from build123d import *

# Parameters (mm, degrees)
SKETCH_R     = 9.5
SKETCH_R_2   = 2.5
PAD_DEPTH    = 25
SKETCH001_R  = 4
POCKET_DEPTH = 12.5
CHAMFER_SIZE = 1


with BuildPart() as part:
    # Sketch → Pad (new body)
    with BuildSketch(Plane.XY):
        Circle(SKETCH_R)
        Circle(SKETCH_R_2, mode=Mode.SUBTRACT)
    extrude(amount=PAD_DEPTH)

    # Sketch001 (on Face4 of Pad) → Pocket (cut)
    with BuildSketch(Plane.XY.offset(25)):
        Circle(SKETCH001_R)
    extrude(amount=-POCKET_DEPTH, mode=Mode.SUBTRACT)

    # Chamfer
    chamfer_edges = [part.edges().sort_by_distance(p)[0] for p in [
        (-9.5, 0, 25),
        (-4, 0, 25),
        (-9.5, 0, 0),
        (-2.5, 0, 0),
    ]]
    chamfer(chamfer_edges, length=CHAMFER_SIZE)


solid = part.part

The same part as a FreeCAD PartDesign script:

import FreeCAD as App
import Part
import Sketcher
from FreeCAD import Vector


def edges_at(feature, points):
    """Names of the edges that pass closest to the given points."""
    edges = feature.Shape.Edges
    near = lambda p: min(range(len(edges)), key=lambda i: edges[i].distToShape(Part.Vertex(*p))[0])
    return sorted({f"Edge{near(p) + 1}" for p in points})

doc = App.newDocument("Part")
body = doc.addObject("PartDesign::Body", "Body")

sketch1 = body.newObject("Sketcher::SketchObject", "Sketch")
sketch1.AttachmentSupport = (doc.getObject("XY_Plane"), [""])
sketch1.MapMode = "FlatFace"
sketch1.addGeometry([
    Part.Circle(Vector(0, 0, 0), Vector(0, 0, 1), 9.5),
    Part.Circle(Vector(0, 0, 0), Vector(0, 0, 1), 2.5),
], False)
sketch1.addConstraint([
    Sketcher.Constraint("Coincident", 0, 3, -1, 1),
    Sketcher.Constraint("Coincident", 1, 3, -1, 1),
    Sketcher.Constraint("Diameter", 0, 19.0),
    Sketcher.Constraint("Diameter", 1, 5.0),
])
pad1 = body.newObject("PartDesign::Pad", "Pad")
pad1.Profile = sketch1
pad1.Length = 25

sketch2 = body.newObject("Sketcher::SketchObject", "Sketch001")
sketch2.AttachmentSupport = (doc.getObject("XY_Plane"), [""])
sketch2.MapMode = "FlatFace"
sketch2.AttachmentOffset = App.Placement(Vector(0, 0, 25), App.Rotation())
sketch2.addGeometry(Part.Circle(Vector(0, 0, 0), Vector(0, 0, 1), 4), False)
sketch2.addConstraint([
    Sketcher.Constraint("Coincident", 0, 3, -1, 1),
    Sketcher.Constraint("Diameter", 0, 8.0),
])
pocket1 = body.newObject("PartDesign::Pocket", "Pocket")
pocket1.Profile = sketch2
pocket1.Length = 12.5
doc.recompute()

chamfer = body.newObject("PartDesign::Chamfer", "Chamfer")
chamfer.Base = (pocket1, edges_at(pocket1, [
    (-9.5, 0, 25),
    (-4, 0, 25),
    (-9.5, 0, 0),
    (-2.5, 0, 0),
]))
chamfer.Size = 1

doc.recompute()
